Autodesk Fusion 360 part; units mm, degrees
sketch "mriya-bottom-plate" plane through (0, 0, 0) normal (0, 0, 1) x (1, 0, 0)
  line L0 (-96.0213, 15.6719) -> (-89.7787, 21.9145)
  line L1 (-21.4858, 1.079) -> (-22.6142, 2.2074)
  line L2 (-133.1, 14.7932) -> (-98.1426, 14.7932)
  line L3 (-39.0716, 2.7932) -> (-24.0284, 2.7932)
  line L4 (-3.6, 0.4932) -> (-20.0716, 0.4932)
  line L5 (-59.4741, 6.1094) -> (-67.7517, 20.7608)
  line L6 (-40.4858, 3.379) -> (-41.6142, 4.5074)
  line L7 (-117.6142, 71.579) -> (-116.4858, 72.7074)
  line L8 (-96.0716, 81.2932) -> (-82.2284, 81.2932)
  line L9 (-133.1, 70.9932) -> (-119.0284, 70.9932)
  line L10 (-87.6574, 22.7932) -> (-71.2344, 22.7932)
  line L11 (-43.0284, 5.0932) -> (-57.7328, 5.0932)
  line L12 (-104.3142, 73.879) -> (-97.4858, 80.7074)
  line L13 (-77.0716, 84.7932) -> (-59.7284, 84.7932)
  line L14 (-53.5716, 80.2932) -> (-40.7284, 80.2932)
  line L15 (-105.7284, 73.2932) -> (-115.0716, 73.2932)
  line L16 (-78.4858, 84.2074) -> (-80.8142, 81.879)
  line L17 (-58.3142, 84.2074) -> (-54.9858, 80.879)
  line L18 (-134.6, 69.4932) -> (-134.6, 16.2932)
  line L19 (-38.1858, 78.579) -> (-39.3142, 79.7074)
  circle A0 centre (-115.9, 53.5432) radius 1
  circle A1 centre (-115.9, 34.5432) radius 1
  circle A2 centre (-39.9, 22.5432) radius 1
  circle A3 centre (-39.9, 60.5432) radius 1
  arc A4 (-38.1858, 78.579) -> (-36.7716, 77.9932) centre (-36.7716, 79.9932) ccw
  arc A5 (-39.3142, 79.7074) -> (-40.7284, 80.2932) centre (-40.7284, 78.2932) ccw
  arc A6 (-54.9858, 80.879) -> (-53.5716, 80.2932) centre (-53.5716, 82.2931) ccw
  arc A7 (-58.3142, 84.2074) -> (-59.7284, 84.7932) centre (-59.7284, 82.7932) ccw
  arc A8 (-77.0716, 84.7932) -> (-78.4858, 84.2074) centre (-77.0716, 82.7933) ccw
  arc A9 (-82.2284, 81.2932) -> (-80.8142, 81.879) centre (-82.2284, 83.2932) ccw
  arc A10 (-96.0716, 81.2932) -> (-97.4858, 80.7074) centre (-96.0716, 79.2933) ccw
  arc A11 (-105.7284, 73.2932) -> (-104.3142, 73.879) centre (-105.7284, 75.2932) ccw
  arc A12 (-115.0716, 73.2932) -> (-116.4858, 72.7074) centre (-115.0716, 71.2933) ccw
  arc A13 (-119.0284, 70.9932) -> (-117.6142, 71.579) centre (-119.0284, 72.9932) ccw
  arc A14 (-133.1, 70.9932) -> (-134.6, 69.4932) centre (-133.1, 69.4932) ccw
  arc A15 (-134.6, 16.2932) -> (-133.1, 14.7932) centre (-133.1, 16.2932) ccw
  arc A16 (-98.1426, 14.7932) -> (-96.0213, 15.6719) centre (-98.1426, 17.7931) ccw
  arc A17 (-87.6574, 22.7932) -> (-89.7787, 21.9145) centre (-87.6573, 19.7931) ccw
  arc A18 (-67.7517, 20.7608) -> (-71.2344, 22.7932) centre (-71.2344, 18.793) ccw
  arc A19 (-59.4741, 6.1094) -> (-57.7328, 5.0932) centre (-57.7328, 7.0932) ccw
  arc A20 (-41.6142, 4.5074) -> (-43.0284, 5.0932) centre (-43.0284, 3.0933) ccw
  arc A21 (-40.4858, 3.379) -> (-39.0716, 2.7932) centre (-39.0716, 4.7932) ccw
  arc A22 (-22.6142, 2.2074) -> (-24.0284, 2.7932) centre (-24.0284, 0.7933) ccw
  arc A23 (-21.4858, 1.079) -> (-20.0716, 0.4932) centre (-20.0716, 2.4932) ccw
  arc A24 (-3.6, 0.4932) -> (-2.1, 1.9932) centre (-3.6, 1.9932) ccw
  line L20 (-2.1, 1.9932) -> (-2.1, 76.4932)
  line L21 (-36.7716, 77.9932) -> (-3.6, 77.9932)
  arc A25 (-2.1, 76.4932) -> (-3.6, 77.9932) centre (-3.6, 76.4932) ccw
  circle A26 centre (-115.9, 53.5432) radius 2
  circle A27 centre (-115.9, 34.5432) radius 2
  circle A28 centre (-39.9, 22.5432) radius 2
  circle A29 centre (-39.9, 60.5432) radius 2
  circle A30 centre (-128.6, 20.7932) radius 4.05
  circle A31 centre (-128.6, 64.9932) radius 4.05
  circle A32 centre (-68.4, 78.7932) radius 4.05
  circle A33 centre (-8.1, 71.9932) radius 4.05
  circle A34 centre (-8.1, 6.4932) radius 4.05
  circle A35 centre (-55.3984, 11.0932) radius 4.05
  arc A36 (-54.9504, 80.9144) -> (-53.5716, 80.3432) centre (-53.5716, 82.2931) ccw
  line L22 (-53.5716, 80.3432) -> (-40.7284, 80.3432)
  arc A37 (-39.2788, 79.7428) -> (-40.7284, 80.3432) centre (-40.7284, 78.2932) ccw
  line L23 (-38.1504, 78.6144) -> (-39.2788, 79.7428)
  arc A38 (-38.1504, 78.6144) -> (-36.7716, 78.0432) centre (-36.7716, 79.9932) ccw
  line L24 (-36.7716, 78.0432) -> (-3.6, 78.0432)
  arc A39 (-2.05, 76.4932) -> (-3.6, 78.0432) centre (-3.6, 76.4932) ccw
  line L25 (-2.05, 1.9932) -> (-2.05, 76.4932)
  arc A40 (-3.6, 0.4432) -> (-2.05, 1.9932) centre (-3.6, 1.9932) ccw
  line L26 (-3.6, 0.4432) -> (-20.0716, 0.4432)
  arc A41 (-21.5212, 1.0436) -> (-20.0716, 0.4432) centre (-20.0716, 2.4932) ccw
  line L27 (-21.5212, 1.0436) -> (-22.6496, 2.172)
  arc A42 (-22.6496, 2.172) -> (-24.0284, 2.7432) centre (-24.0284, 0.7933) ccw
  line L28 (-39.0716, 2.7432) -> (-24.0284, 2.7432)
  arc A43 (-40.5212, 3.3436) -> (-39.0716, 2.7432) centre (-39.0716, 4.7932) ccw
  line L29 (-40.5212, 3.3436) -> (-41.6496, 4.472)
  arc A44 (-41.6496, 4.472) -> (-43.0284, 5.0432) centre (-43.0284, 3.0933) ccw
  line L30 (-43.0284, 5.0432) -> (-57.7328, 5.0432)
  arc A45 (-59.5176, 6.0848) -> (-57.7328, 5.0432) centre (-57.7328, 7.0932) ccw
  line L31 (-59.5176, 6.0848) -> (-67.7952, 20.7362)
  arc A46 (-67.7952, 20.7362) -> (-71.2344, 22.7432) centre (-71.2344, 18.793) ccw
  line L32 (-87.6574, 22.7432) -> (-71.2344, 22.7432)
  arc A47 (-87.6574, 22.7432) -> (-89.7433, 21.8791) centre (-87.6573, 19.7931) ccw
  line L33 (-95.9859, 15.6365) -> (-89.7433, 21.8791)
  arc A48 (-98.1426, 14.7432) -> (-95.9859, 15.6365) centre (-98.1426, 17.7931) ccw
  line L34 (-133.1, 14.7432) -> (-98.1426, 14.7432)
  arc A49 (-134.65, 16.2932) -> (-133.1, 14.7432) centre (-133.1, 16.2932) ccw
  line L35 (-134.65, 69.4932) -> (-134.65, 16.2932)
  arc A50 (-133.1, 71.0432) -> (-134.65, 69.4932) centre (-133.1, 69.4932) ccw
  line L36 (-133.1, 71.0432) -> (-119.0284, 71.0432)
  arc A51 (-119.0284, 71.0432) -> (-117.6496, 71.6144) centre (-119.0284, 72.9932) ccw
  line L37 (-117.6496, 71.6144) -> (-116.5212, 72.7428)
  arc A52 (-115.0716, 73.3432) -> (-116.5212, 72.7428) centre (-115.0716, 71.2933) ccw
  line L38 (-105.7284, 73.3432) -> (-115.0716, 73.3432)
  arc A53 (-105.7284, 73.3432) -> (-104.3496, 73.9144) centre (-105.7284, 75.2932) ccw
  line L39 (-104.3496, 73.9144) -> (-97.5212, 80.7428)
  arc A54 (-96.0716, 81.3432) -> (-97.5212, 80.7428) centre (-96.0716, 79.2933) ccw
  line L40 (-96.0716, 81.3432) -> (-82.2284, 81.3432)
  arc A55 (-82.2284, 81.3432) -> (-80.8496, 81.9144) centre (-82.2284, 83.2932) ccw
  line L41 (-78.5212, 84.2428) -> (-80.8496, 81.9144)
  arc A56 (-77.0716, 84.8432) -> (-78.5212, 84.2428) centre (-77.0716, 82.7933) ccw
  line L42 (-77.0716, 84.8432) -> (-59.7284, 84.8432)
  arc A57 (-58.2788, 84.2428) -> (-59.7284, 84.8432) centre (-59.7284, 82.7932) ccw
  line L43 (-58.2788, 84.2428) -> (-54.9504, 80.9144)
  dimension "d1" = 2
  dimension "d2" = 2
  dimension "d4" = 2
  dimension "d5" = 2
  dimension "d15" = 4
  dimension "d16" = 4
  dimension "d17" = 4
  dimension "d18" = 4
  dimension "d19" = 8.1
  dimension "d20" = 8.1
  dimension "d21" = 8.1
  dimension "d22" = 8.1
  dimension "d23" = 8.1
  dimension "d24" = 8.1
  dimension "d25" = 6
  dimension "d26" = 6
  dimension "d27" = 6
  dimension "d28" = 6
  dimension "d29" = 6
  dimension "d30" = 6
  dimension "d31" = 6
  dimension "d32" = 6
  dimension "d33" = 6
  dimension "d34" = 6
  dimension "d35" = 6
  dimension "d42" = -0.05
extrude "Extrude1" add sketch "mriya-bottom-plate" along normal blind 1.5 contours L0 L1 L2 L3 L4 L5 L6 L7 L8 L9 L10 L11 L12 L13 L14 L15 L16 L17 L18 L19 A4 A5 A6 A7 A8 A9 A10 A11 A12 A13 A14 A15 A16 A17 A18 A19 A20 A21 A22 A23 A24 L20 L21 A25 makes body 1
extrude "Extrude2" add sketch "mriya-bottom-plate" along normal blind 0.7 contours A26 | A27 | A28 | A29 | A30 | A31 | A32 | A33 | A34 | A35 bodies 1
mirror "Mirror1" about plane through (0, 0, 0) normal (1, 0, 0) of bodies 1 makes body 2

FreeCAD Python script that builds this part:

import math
import FreeCAD as App
import Part
import Sketcher
Q = App.Units.Quantity

doc = App.newDocument("Part")
body = doc.addObject("PartDesign::Body", "Body")
body.AllowCompound = True

# Sketch on XY plane
sketch1 = doc.addObject("Sketcher::SketchObject", "Sketch")
body.addObject(sketch1)
sketch1.AttachmentSupport = (doc.XY_Plane, [""])
sketch1.MapMode = "FlatFace"
sketch1.addGeometry(Part.ArcOfCircle(Part.Circle(App.Vector(-98.1, 17.8, 0), App.Vector(0, 0, 1), 3), math.radians(-90), math.radians(-45)), False)
sketch1.addGeometry(Part.LineSegment(App.Vector(-96, 15.7, 0), App.Vector(-89.8, 21.9, 0)), False)
sketch1.addGeometry(Part.ArcOfCircle(Part.Circle(App.Vector(-87.7, 19.8, 0), App.Vector(0, 0, 1), 3), math.radians(90), math.radians(135)), False)
sketch1.addGeometry(Part.LineSegment(App.Vector(-87.7, 22.8, 0), App.Vector(-71.2, 22.8, 0)), False)
sketch1.addGeometry(Part.ArcOfCircle(Part.Circle(App.Vector(-71.2, 18.8, 0), App.Vector(0, 0, 1), 4), math.radians(29), math.radians(90)), False)
sketch1.addGeometry(Part.LineSegment(App.Vector(-67.8, 20.8, 0), App.Vector(-59.5, 6.1, 0)), False)
sketch1.addGeometry(Part.ArcOfCircle(Part.Circle(App.Vector(-57.7, 7.1, 0), App.Vector(0, 0, 1), 2), math.radians(-151), math.radians(-90)), False)
sketch1.addGeometry(Part.LineSegment(App.Vector(-57.7, 5.1, 0), App.Vector(-43, 5.1, 0)), False)
sketch1.addGeometry(Part.ArcOfCircle(Part.Circle(App.Vector(-43, 3.1, 0), App.Vector(0, 0, 1), 2), math.radians(45), math.radians(90)), False)
sketch1.addGeometry(Part.LineSegment(App.Vector(-41.6, 4.5, 0), App.Vector(-40.5, 3.4, 0)), False)
sketch1.addGeometry(Part.ArcOfCircle(Part.Circle(App.Vector(-39.1, 4.8, 0), App.Vector(0, 0, 1), 2), math.radians(-135), math.radians(-90)), False)
sketch1.addGeometry(Part.LineSegment(App.Vector(-39.1, 2.8, 0), App.Vector(-24, 2.8, 0)), False)
sketch1.addGeometry(Part.ArcOfCircle(Part.Circle(App.Vector(-24, 0.8, 0), App.Vector(0, 0, 1), 2), math.radians(45), math.radians(90)), False)
sketch1.addGeometry(Part.LineSegment(App.Vector(-22.6, 2.2, 0), App.Vector(-21.5, 1.1, 0)), False)
sketch1.addGeometry(Part.ArcOfCircle(Part.Circle(App.Vector(-20.1, 2.5, 0), App.Vector(0, 0, 1), 2), math.radians(-135), math.radians(-90)), False)
sketch1.addGeometry(Part.LineSegment(App.Vector(-20.1, 0.5, 0), App.Vector(-3.6, 0.5, 0)), False)
sketch1.addGeometry(Part.ArcOfCircle(Part.Circle(App.Vector(-3.6, 2, 0), App.Vector(0, 0, 1), 1.5), math.radians(-90), math.radians(0)), False)
sketch1.addGeometry(Part.LineSegment(App.Vector(-2.1, 2, 0), App.Vector(-2.1, 76.5, 0)), False)
sketch1.addGeometry(Part.ArcOfCircle(Part.Circle(App.Vector(-3.6, 76.5, 0), App.Vector(0, 0, 1), 1.5), math.radians(0), math.radians(90)), False)
sketch1.addGeometry(Part.LineSegment(App.Vector(-3.6, 78, 0), App.Vector(-36.8, 78, 0)), False)
sketch1.addGeometry(Part.ArcOfCircle(Part.Circle(App.Vector(-36.8, 80, 0), App.Vector(0, 0, 1), 2), math.radians(-135), math.radians(-90)), False)
sketch1.addGeometry(Part.LineSegment(App.Vector(-38.2, 78.6, 0), App.Vector(-39.3, 79.7, 0)), False)
sketch1.addGeometry(Part.ArcOfCircle(Part.Circle(App.Vector(-40.7, 78.3, 0), App.Vector(0, 0, 1), 2), math.radians(45), math.radians(90)), False)
sketch1.addGeometry(Part.LineSegment(App.Vector(-40.7, 80.3, 0), App.Vector(-53.6, 80.3, 0)), False)
sketch1.addGeometry(Part.ArcOfCircle(Part.Circle(App.Vector(-53.6, 82.3, 0), App.Vector(0, 0, 1), 2), math.radians(-135), math.radians(-90)), False)
sketch1.addGeometry(Part.LineSegment(App.Vector(-55, 80.9, 0), App.Vector(-58.3, 84.2, 0)), False)
sketch1.addGeometry(Part.ArcOfCircle(Part.Circle(App.Vector(-59.7, 82.8, 0), App.Vector(0, 0, 1), 2), math.radians(45), math.radians(90)), False)
sketch1.addGeometry(Part.LineSegment(App.Vector(-59.7, 84.8, 0), App.Vector(-77.1, 84.8, 0)), False)
sketch1.addGeometry(Part.ArcOfCircle(Part.Circle(App.Vector(-77.1, 82.8, 0), App.Vector(0, 0, 1), 2), math.radians(90), math.radians(135)), False)
sketch1.addGeometry(Part.LineSegment(App.Vector(-78.5, 84.2, 0), App.Vector(-80.8, 81.9, 0)), False)
sketch1.addGeometry(Part.ArcOfCircle(Part.Circle(App.Vector(-82.2, 83.3, 0), App.Vector(0, 0, 1), 2), math.radians(-90), math.radians(-45)), False)
sketch1.addGeometry(Part.LineSegment(App.Vector(-82.2, 81.3, 0), App.Vector(-96.1, 81.3, 0)), False)
sketch1.addGeometry(Part.ArcOfCircle(Part.Circle(App.Vector(-96.1, 79.3, 0), App.Vector(0, 0, 1), 2), math.radians(90), math.radians(135)), False)
sketch1.addGeometry(Part.LineSegment(App.Vector(-97.5, 80.7, 0), App.Vector(-104.3, 73.9, 0)), False)
sketch1.addGeometry(Part.ArcOfCircle(Part.Circle(App.Vector(-105.7, 75.3, 0), App.Vector(0, 0, 1), 2), math.radians(-90), math.radians(-45)), False)
sketch1.addGeometry(Part.LineSegment(App.Vector(-105.7, 73.3, 0), App.Vector(-115.1, 73.3, 0)), False)
sketch1.addGeometry(Part.ArcOfCircle(Part.Circle(App.Vector(-115.1, 71.3, 0), App.Vector(0, 0, 1), 2), math.radians(90), math.radians(135)), False)
sketch1.addGeometry(Part.LineSegment(App.Vector(-116.5, 72.7, 0), App.Vector(-117.6, 71.6, 0)), False)
sketch1.addGeometry(Part.ArcOfCircle(Part.Circle(App.Vector(-119, 73, 0), App.Vector(0, 0, 1), 2), math.radians(-90), math.radians(-45)), False)
sketch1.addGeometry(Part.LineSegment(App.Vector(-119, 71, 0), App.Vector(-133.1, 71, 0)), False)
sketch1.addGeometry(Part.ArcOfCircle(Part.Circle(App.Vector(-133.1, 69.5, 0), App.Vector(0, 0, 1), 1.5), math.radians(90), math.radians(180)), False)
sketch1.addGeometry(Part.LineSegment(App.Vector(-134.6, 69.5, 0), App.Vector(-134.6, 16.3, 0)), False)
sketch1.addGeometry(Part.ArcOfCircle(Part.Circle(App.Vector(-133.1, 16.3, 0), App.Vector(0, 0, 1), 1.5), math.radians(180), math.radians(270)), False)
sketch1.addGeometry(Part.LineSegment(App.Vector(-133.1, 14.8, 0), App.Vector(-98.1, 14.8, 0)), False)
sketch1.addGeometry(Part.Circle(App.Vector(-128.6, 20.8, 0), App.Vector(0, 0, 1), 4), False)
sketch1.addGeometry(Part.Circle(App.Vector(-115.9, 34.5, 0), App.Vector(0, 0, 1), 2), False)
sketch1.addGeometry(Part.Circle(App.Vector(-55.4, 11.1, 0), App.Vector(0, 0, 1), 4), False)
sketch1.addGeometry(Part.Circle(App.Vector(-8.1, 6.5, 0), App.Vector(0, 0, 1), 4), False)
sketch1.addGeometry(Part.Circle(App.Vector(-39.9, 22.5, 0), App.Vector(0, 0, 1), 2), False)
sketch1.addGeometry(Part.Circle(App.Vector(-115.9, 53.5, 0), App.Vector(0, 0, 1), 2), False)
sketch1.addGeometry(Part.Circle(App.Vector(-128.6, 65, 0), App.Vector(0, 0, 1), 4), False)
sketch1.addGeometry(Part.Circle(App.Vector(-68.4, 78.8, 0), App.Vector(0, 0, 1), 4), False)
sketch1.addGeometry(Part.Circle(App.Vector(-39.9, 60.5, 0), App.Vector(0, 0, 1), 2), False)
sketch1.addGeometry(Part.Circle(App.Vector(-8.1, 72, 0), App.Vector(0, 0, 1), 4), False)
sketch1.addConstraint(Sketcher.Constraint("Tangent", 0, 2, 1, 1))
sketch1.addConstraint(Sketcher.Constraint("Tangent", 1, 2, 2, 2))
sketch1.addConstraint(Sketcher.Constraint("Tangent", 2, 1, 3, 1))
sketch1.addConstraint(Sketcher.Constraint("Tangent", 3, 2, 4, 2))
sketch1.addConstraint(Sketcher.Constraint("Tangent", 4, 1, 5, 1))
sketch1.addConstraint(Sketcher.Constraint("Tangent", 5, 2, 6, 1))
sketch1.addConstraint(Sketcher.Constraint("Tangent", 6, 2, 7, 1))
sketch1.addConstraint(Sketcher.Constraint("Tangent", 7, 2, 8, 2))
sketch1.addConstraint(Sketcher.Constraint("Tangent", 8, 1, 9, 1))
sketch1.addConstraint(Sketcher.Constraint("Tangent", 9, 2, 10, 1))
sketch1.addConstraint(Sketcher.Constraint("Tangent", 10, 2, 11, 1))
sketch1.addConstraint(Sketcher.Constraint("Tangent", 11, 2, 12, 2))
sketch1.addConstraint(Sketcher.Constraint("Tangent", 12, 1, 13, 1))
sketch1.addConstraint(Sketcher.Constraint("Tangent", 13, 2, 14, 1))
sketch1.addConstraint(Sketcher.Constraint("Tangent", 14, 2, 15, 1))
sketch1.addConstraint(Sketcher.Constraint("Tangent", 15, 2, 16, 1))
sketch1.addConstraint(Sketcher.Constraint("Tangent", 16, 2, 17, 1))
sketch1.addConstraint(Sketcher.Constraint("Tangent", 17, 2, 18, 1))
sketch1.addConstraint(Sketcher.Constraint("Tangent", 18, 2, 19, 1))
sketch1.addConstraint(Sketcher.Constraint("Tangent", 19, 2, 20, 2))
sketch1.addConstraint(Sketcher.Constraint("Tangent", 20, 1, 21, 1))
sketch1.addConstraint(Sketcher.Constraint("Tangent", 21, 2, 22, 1))
sketch1.addConstraint(Sketcher.Constraint("Tangent", 22, 2, 23, 1))
sketch1.addConstraint(Sketcher.Constraint("Tangent", 23, 2, 24, 2))
sketch1.addConstraint(Sketcher.Constraint("Tangent", 24, 1, 25, 1))
sketch1.addConstraint(Sketcher.Constraint("Tangent", 25, 2, 26, 1))
sketch1.addConstraint(Sketcher.Constraint("Tangent", 26, 2, 27, 1))
sketch1.addConstraint(Sketcher.Constraint("Tangent", 27, 2, 28, 1))
sketch1.addConstraint(Sketcher.Constraint("Tangent", 28, 2, 29, 1))
sketch1.addConstraint(Sketcher.Constraint("Tangent", 29, 2, 30, 2))
sketch1.addConstraint(Sketcher.Constraint("Tangent", 30, 1, 31, 1))
sketch1.addConstraint(Sketcher.Constraint("Tangent", 31, 2, 32, 1))
sketch1.addConstraint(Sketcher.Constraint("Tangent", 32, 2, 33, 1))
sketch1.addConstraint(Sketcher.Constraint("Tangent", 33, 2, 34, 2))
sketch1.addConstraint(Sketcher.Constraint("Tangent", 34, 1, 35, 1))
sketch1.addConstraint(Sketcher.Constraint("Tangent", 35, 2, 36, 1))
sketch1.addConstraint(Sketcher.Constraint("Tangent", 36, 2, 37, 1))
sketch1.addConstraint(Sketcher.Constraint("Tangent", 37, 2, 38, 2))
sketch1.addConstraint(Sketcher.Constraint("Tangent", 38, 1, 39, 1))
sketch1.addConstraint(Sketcher.Constraint("Tangent", 39, 2, 40, 1))
sketch1.addConstraint(Sketcher.Constraint("Tangent", 40, 2, 41, 1))
sketch1.addConstraint(Sketcher.Constraint("Tangent", 41, 2, 42, 1))
sketch1.addConstraint(Sketcher.Constraint("Tangent", 42, 2, 43, 1))
sketch1.addConstraint(Sketcher.Constraint("Tangent", 43, 2, 0, 1))
sketch1.addConstraint(Sketcher.Constraint("Horizontal", 3))
sketch1.addConstraint(Sketcher.Constraint("Horizontal", 7))
sketch1.addConstraint(Sketcher.Constraint("Horizontal", 11))
sketch1.addConstraint(Sketcher.Constraint("Horizontal", 15))
sketch1.addConstraint(Sketcher.Constraint("Vertical", 17))
sketch1.addConstraint(Sketcher.Constraint("Horizontal", 19))
sketch1.addConstraint(Sketcher.Constraint("Horizontal", 23))
sketch1.addConstraint(Sketcher.Constraint("Horizontal", 27))
sketch1.addConstraint(Sketcher.Constraint("Horizontal", 31))
sketch1.addConstraint(Sketcher.Constraint("Horizontal", 35))
sketch1.addConstraint(Sketcher.Constraint("Horizontal", 39))
sketch1.addConstraint(Sketcher.Constraint("Vertical", 41))
sketch1.addConstraint(Sketcher.Constraint("Horizontal", 43))
sketch1.addConstraint(Sketcher.Constraint("Equal", 6, 8))
sketch1.addConstraint(Sketcher.Constraint("Equal", 8, 10))
sketch1.addConstraint(Sketcher.Constraint("Equal", 10, 12))
sketch1.addConstraint(Sketcher.Constraint("Equal", 12, 14))
sketch1.addConstraint(Sketcher.Constraint("Equal", 16, 18))
sketch1.addConstraint(Sketcher.Constraint("Equal", 14, 20))
sketch1.addConstraint(Sketcher.Constraint("Equal", 20, 22))
sketch1.addConstraint(Sketcher.Constraint("Equal", 22, 24))
sketch1.addConstraint(Sketcher.Constraint("Equal", 24, 26))
sketch1.addConstraint(Sketcher.Constraint("Equal", 26, 28))
sketch1.addConstraint(Sketcher.Constraint("Equal", 28, 30))
sketch1.addConstraint(Sketcher.Constraint("Equal", 30, 32))
sketch1.addConstraint(Sketcher.Constraint("Equal", 32, 34))
sketch1.addConstraint(Sketcher.Constraint("Equal", 34, 36))
sketch1.addConstraint(Sketcher.Constraint("Equal", 36, 38))
sketch1.addConstraint(Sketcher.Constraint("Equal", 18, 40))
sketch1.addConstraint(Sketcher.Constraint("Equal", 40, 42))
sketch1.addConstraint(Sketcher.Constraint("Equal", 38, 45))
sketch1.addConstraint(Sketcher.Constraint("Equal", 44, 46))
sketch1.addConstraint(Sketcher.Constraint("Equal", 46, 47))
sketch1.addConstraint(Sketcher.Constraint("Equal", 45, 48))
sketch1.addConstraint(Sketcher.Constraint("Equal", 48, 49))
sketch1.addConstraint(Sketcher.Constraint("Equal", 47, 50))
sketch1.addConstraint(Sketcher.Constraint("Equal", 50, 51))
sketch1.addConstraint(Sketcher.Constraint("Equal", 49, 52))
sketch1.addConstraint(Sketcher.Constraint("Equal", 51, 53))
sketch1.addConstraint(Sketcher.Constraint("Perpendicular", 1, 9))
sketch1.addConstraint(Sketcher.Constraint("Parallel", 9, 13))
sketch1.addConstraint(Sketcher.Constraint("Parallel", 13, 21))
sketch1.addConstraint(Sketcher.Constraint("Parallel", 21, 25))
sketch1.addConstraint(Sketcher.Constraint("Perpendicular", 25, 29))
sketch1.addConstraint(Sketcher.Constraint("Parallel", 29, 33))
sketch1.addConstraint(Sketcher.Constraint("Parallel", 33, 37))
sketch1.addConstraint(Sketcher.Constraint("Horizontal", 25, 2, 28, 2))
sketch1.addConstraint(Sketcher.Constraint("Vertical", 45, 3, 49, 3))
sketch1.addConstraint(Sketcher.Constraint("Vertical", 44, 3, 50, 3))
sketch1.addConstraint(Sketcher.Constraint("Vertical", 48, 3, 52, 3))
sketch1.addConstraint(Sketcher.Constraint("Vertical", 47, 3, 53, 3))
sketch1.addConstraint(Sketcher.Constraint("Equal", 9, 13))
sketch1.addConstraint(Sketcher.Constraint("Equal", 13, 21))
sketch1.addConstraint(Sketcher.Constraint("Equal", 21, 37))
sketch1.addConstraint(Sketcher.Constraint("Diameter", 45, Q("4 mm")))
sketch1.addConstraint(Sketcher.Constraint("Radius", 0, Q("3 mm")))
sketch1.addConstraint(Sketcher.Constraint("Radius", 2, Q("3 mm")))
sketch1.addConstraint(Sketcher.Constraint("Diameter", 44, Q("8.1 mm")))
sketch1.addConstraint(Sketcher.Constraint("DistanceX", 47, 3, -1, 1, Q("8.1 mm")))
sketch1.addConstraint(Sketcher.Constraint("Radius", 4, Q("4.0002 mm")))
sketch1.addConstraint(Sketcher.Constraint("Radius", 16, Q("1.5 mm")))
sketch1.addConstraint(Sketcher.Constraint("DistanceY", 17, 1, 17, 2, Q("74.5 mm")))
sketch1.addConstraint(Sketcher.Constraint("DistanceY", 41, 2, 41, 1, Q("53.2 mm")))
sketch1.addConstraint(Sketcher.Constraint("DistanceX", 16, 3, -1, 1, Q("3.6 mm")))
sketch1.addConstraint(Sketcher.Constraint("DistanceX", 40, 3, -1, 1, Q("133.1 mm")))
sketch1.addConstraint(Sketcher.Constraint("DistanceX", 44, 3, -1, 1, Q("128.6 mm")))
sketch1.addConstraint(Sketcher.Constraint("DistanceX", 45, 3, -1, 1, Q("115.9 mm")))
sketch1.addConstraint(Sketcher.Constraint("DistanceX", 48, 3, -1, 1, Q("39.9 mm")))
sketch1.addConstraint(Sketcher.Constraint("DistanceX", 51, 3, -1, 1, Q("68.4 mm")))
sketch1.addConstraint(Sketcher.Constraint("DistanceX", 3, 1, 3, 2, Q("16.423 mm")))
sketch1.addConstraint(Sketcher.Constraint("Distance", 5, Q("16.828 mm")))
sketch1.addConstraint(Sketcher.Constraint("Distance", 25, Q("4.707 mm")))
sketch1.addConstraint(Sketcher.Constraint("DistanceX", 7, 1, 7, 2, Q("14.7044 mm")))
sketch1.addConstraint(Sketcher.Constraint("DistanceX", 11, 1, 11, 2, Q("15.0432 mm")))
sketch1.addConstraint(Sketcher.Constraint("DistanceX", 15, 1, 15, 2, Q("16.4716 mm")))
sketch1.addConstraint(Sketcher.Constraint("DistanceX", 19, 2, 19, 1, Q("33.1716 mm")))
sketch1.addConstraint(Sketcher.Constraint("DistanceX", 23, 2, 23, 1, Q("12.8432 mm")))
sketch1.addConstraint(Sketcher.Constraint("DistanceX", 27, 2, 27, 1, Q("17.3432 mm")))
sketch1.addConstraint(Sketcher.Constraint("DistanceX", 31, 2, 31, 1, Q("13.8432 mm")))
sketch1.addConstraint(Sketcher.Constraint("DistanceX", 35, 2, 35, 1, Q("9.3432 mm")))
sketch1.addConstraint(Sketcher.Constraint("DistanceX", 39, 2, 39, 1, Q("14.0716 mm")))
sketch1.addConstraint(Sketcher.Constraint("DistanceX", 43, 1, 43, 2, Q("34.9574 mm")))
sketch1.addConstraint(Sketcher.Constraint("DistanceY", -1, 1, 0, 3, Q("17.793 mm")))
sketch1.addConstraint(Sketcher.Constraint("DistanceY", -1, 1, 2, 3, Q("19.793 mm")))
sketch1.addConstraint(Sketcher.Constraint("DistanceY", -1, 1, 29, 2, Q("81.879 mm")))
sketch1.addConstraint(Sketcher.Constraint("DistanceY", -1, 1, 44, 3, Q("20.7932 mm")))
sketch1.addConstraint(Sketcher.Constraint("DistanceY", -1, 1, 45, 3, Q("34.5432 mm")))
sketch1.addConstraint(Sketcher.Constraint("DistanceX", 46, 3, -1, 1, Q("55.3984 mm")))
sketch1.addConstraint(Sketcher.Constraint("DistanceY", -1, 1, 46, 3, Q("11.0932 mm")))
sketch1.addConstraint(Sketcher.Constraint("DistanceY", -1, 1, 47, 3, Q("6.4932 mm")))
sketch1.addConstraint(Sketcher.Constraint("DistanceY", -1, 1, 48, 3, Q("22.5432 mm")))
sketch1.addConstraint(Sketcher.Constraint("DistanceY", -1, 1, 49, 3, Q("53.5432 mm")))
sketch1.addConstraint(Sketcher.Constraint("DistanceY", -1, 1, 50, 3, Q("64.9932 mm")))
sketch1.addConstraint(Sketcher.Constraint("DistanceY", -1, 1, 51, 3, Q("78.7932 mm")))
sketch1.addConstraint(Sketcher.Constraint("DistanceY", -1, 1, 52, 3, Q("60.5432 mm")))
sketch1.addConstraint(Sketcher.Constraint("DistanceY", -1, 1, 53, 3, Q("71.9932 mm")))
pad1 = doc.addObject("PartDesign::Pad", "Pad")
body.addObject(pad1)
pad1.Profile = sketch1
pad1.Length = 1.5

# Sketch on XY plane
sketch2 = doc.addObject("Sketcher::SketchObject", "Sketch001")
body.addObject(sketch2)
sketch2.AttachmentSupport = (doc.XY_Plane, [""])
sketch2.MapMode = "FlatFace"
sketch2.addGeometry(Part.Circle(App.Vector(-115.9, 53.5, 0), App.Vector(0, 0, 1), 2), False)
sketch2.addGeometry(Part.Circle(App.Vector(-115.9, 53.5, 0), App.Vector(0, 0, 1), 1), False)
sketch2.addGeometry(Part.Circle(App.Vector(-115.9, 34.5, 0), App.Vector(0, 0, 1), 2), False)
sketch2.addGeometry(Part.Circle(App.Vector(-115.9, 34.5, 0), App.Vector(0, 0, 1), 1), False)
sketch2.addGeometry(Part.Circle(App.Vector(-39.9, 22.5, 0), App.Vector(0, 0, 1), 2), False)
sketch2.addGeometry(Part.Circle(App.Vector(-39.9, 22.5, 0), App.Vector(0, 0, 1), 1), False)
sketch2.addGeometry(Part.Circle(App.Vector(-39.9, 60.5, 0), App.Vector(0, 0, 1), 2), False)
sketch2.addGeometry(Part.Circle(App.Vector(-39.9, 60.5, 0), App.Vector(0, 0, 1), 1), False)
sketch2.addGeometry(Part.Circle(App.Vector(-128.6, 20.8, 0), App.Vector(0, 0, 1), 4), False)
sketch2.addGeometry(Part.Circle(App.Vector(-128.6, 65, 0), App.Vector(0, 0, 1), 4), False)
sketch2.addGeometry(Part.Circle(App.Vector(-68.4, 78.8, 0), App.Vector(0, 0, 1), 4), False)
sketch2.addGeometry(Part.Circle(App.Vector(-8.1, 72, 0), App.Vector(0, 0, 1), 4), False)
sketch2.addGeometry(Part.Circle(App.Vector(-8.1, 6.5, 0), App.Vector(0, 0, 1), 4), False)
sketch2.addGeometry(Part.Circle(App.Vector(-55.4, 11.1, 0), App.Vector(0, 0, 1), 4), False)
sketch2.addConstraint(Sketcher.Constraint("Coincident", 1, 3, 0, 3))
sketch2.addConstraint(Sketcher.Constraint("Coincident", 3, 3, 2, 3))
sketch2.addConstraint(Sketcher.Constraint("Coincident", 5, 3, 4, 3))
sketch2.addConstraint(Sketcher.Constraint("Coincident", 7, 3, 6, 3))
sketch2.addConstraint(Sketcher.Constraint("Equal", 0, 2))
sketch2.addConstraint(Sketcher.Constraint("Equal", 1, 3))
sketch2.addConstraint(Sketcher.Constraint("Equal", 2, 4))
sketch2.addConstraint(Sketcher.Constraint("Equal", 3, 5))
sketch2.addConstraint(Sketcher.Constraint("Equal", 4, 6))
sketch2.addConstraint(Sketcher.Constraint("Equal", 5, 7))
sketch2.addConstraint(Sketcher.Constraint("Equal", 8, 9))
sketch2.addConstraint(Sketcher.Constraint("Equal", 9, 10))
sketch2.addConstraint(Sketcher.Constraint("Equal", 10, 11))
sketch2.addConstraint(Sketcher.Constraint("Equal", 11, 12))
sketch2.addConstraint(Sketcher.Constraint("Equal", 12, 13))
sketch2.addConstraint(Sketcher.Constraint("Vertical", 1, 3, 2, 3))
sketch2.addConstraint(Sketcher.Constraint("Vertical", 5, 3, 6, 3))
sketch2.addConstraint(Sketcher.Constraint("Vertical", 8, 3, 9, 3))
sketch2.addConstraint(Sketcher.Constraint("Vertical", 11, 3, 12, 3))
sketch2.addConstraint(Sketcher.Constraint("Diameter", 0, Q("4 mm")))
sketch2.addConstraint(Sketcher.Constraint("Diameter", 1, Q("2 mm")))
sketch2.addConstraint(Sketcher.Constraint("Diameter", 8, Q("8.1 mm")))
sketch2.addConstraint(Sketcher.Constraint("DistanceX", 11, 3, -1, 1, Q("8.1 mm")))
sketch2.addConstraint(Sketcher.Constraint("DistanceY", 2, 3, 0, 3, Q("19 mm")))
sketch2.addConstraint(Sketcher.Constraint("DistanceX", 2, 3, 4, 3, Q("76 mm")))
sketch2.addConstraint(Sketcher.Constraint("DistanceY", 4, 3, 2, 3, Q("12 mm")))
sketch2.addConstraint(Sketcher.Constraint("DistanceY", 4, 3, 6, 3, Q("38 mm")))
sketch2.addConstraint(Sketcher.Constraint("DistanceX", 0, 3, -1, 1, Q("115.9 mm")))
sketch2.addConstraint(Sketcher.Constraint("DistanceX", 8, 3, -1, 1, Q("128.6 mm")))
sketch2.addConstraint(Sketcher.Constraint("DistanceX", 10, 3, -1, 1, Q("68.4 mm")))
sketch2.addConstraint(Sketcher.Constraint("DistanceY", 8, 3, 9, 3, Q("44.2 mm")))
sketch2.addConstraint(Sketcher.Constraint("DistanceY", 9, 3, 10, 3, Q("13.8 mm")))
sketch2.addConstraint(Sketcher.Constraint("DistanceY", 11, 3, 10, 3, Q("6.8 mm")))
sketch2.addConstraint(Sketcher.Constraint("DistanceY", 12, 3, 11, 3, Q("65.5 mm")))
sketch2.addConstraint(Sketcher.Constraint("DistanceY", 12, 3, 13, 3, Q("4.6 mm")))
sketch2.addConstraint(Sketcher.Constraint("DistanceY", 8, 3, 2, 3, Q("13.75 mm")))
sketch2.addConstraint(Sketcher.Constraint("DistanceY", -1, 1, 0, 3, Q("53.5432 mm")))
sketch2.addConstraint(Sketcher.Constraint("DistanceX", 13, 3, -1, 1, Q("55.3984 mm")))
pad2 = doc.addObject("PartDesign::Pad", "Pad001")
body.addObject(pad2)
pad2.Profile = sketch2
pad2.Length = 0.7
doc.recompute()

mirrored = doc.addObject("PartDesign::Mirrored", "Mirrored")
body.addObject(mirrored)
mirrored.TransformMode = "Transform body"
mirrored.MirrorPlane = (doc.YZ_Plane, [""])
body.Tip = mirrored

doc.recompute()
